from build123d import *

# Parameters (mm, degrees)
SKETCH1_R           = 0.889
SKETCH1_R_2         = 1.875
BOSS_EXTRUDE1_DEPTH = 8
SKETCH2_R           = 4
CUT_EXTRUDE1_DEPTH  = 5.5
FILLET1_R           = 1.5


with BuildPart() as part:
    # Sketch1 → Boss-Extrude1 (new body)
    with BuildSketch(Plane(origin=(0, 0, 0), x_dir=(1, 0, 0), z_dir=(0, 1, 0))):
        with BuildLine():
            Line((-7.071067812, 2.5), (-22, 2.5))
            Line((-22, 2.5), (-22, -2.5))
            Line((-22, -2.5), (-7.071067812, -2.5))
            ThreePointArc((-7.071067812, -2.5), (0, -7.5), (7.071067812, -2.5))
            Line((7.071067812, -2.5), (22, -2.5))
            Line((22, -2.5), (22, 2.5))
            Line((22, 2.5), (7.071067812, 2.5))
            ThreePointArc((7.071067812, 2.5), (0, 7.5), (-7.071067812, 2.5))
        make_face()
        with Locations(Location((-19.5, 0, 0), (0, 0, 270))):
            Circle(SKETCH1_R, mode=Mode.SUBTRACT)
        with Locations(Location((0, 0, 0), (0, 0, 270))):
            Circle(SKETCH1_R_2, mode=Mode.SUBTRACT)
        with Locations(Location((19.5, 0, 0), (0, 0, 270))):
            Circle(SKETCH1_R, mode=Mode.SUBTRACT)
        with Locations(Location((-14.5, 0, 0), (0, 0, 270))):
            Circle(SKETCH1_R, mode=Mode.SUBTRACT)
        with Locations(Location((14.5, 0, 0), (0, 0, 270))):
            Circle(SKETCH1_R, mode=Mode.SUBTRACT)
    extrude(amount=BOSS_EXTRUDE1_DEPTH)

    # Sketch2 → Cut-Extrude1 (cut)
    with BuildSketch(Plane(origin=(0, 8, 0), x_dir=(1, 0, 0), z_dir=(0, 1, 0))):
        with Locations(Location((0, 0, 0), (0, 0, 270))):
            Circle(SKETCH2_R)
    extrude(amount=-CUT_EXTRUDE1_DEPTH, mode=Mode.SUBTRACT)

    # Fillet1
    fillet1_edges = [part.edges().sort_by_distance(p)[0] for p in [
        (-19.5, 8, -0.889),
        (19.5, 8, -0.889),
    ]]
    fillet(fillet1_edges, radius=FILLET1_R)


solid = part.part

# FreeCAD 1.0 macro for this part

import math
import FreeCAD as App
import Part
import Sketcher

V = App.Vector
Q = App.Units.Quantity


def edges_at(feature, points):
    """Names of the edges that pass closest to the given points."""
    edges = feature.Shape.Edges
    near = lambda p: min(range(len(edges)), key=lambda i: edges[i].distToShape(Part.Vertex(*p))[0])
    return sorted({f"Edge{near(p) + 1}" for p in points})

doc = App.newDocument("Part")
params = doc.addObject("Spreadsheet::Sheet", "Params")
for row, (alias, value) in enumerate([
    ("sketch1_radius", "7.5 mm"),
    ("sketch1_diameter", "3.75 mm"),
    ("sketch1_height", "5 mm"),
    ("pad1_length", "8 mm"),
    ("sketch2_diameter", "8 mm"),
    ("pocket1_length", "5.5 mm"),
    ("fillet_radius", "1.5 mm"),
], start=1):
    params.set(f"A{row}", alias)
    params.set(f"B{row}", "=" + value)
    params.setAlias(f"B{row}", alias)

body = doc.addObject("PartDesign::Body", "Body")

# Sketch on XZ plane
sketch1 = body.newObject("Sketcher::SketchObject", "Sketch")
sketch1.AttachmentSupport = (doc.getObject("XZ_Plane"), [""])
sketch1.MapMode = "FlatFace"
sketch1.addGeometry(Part.LineSegment(V(-7.1, -2.5, 0), V(-22, -2.5, 0)), False)
sketch1.addGeometry(Part.LineSegment(V(-22, -2.5, 0), V(-22, 2.5, 0)), False)
sketch1.addGeometry(Part.LineSegment(V(-22, 2.5, 0), V(-7.1, 2.5, 0)), False)
sketch1.addGeometry(Part.ArcOfCircle(Part.Circle(V(0, 0, 0), V(0, 0, 1), 7.5), math.radians(19), math.radians(161)), False)
sketch1.addGeometry(Part.LineSegment(V(7.1, 2.5, 0), V(22, 2.5, 0)), False)
sketch1.addGeometry(Part.LineSegment(V(22, 2.5, 0), V(22, -2.5, 0)), False)
sketch1.addGeometry(Part.LineSegment(V(22, -2.5, 0), V(7.1, -2.5, 0)), False)
sketch1.addGeometry(Part.ArcOfCircle(Part.Circle(V(0, 0, 0), V(0, 0, 1), 7.5), math.radians(-161), math.radians(-19)), False)
sketch1.addGeometry(Part.Circle(V(-19.5, 0, 0), V(0, 0, 1), 0.9), False)
sketch1.addGeometry(Part.Circle(V(-14.5, 0, 0), V(0, 0, 1), 0.9), False)
sketch1.addGeometry(Part.Circle(V(0, 0, 0), V(0, 0, 1), 1.9), False)
sketch1.addGeometry(Part.Circle(V(14.5, 0, 0), V(0, 0, 1), 0.9), False)
sketch1.addGeometry(Part.Circle(V(19.5, 0, 0), V(0, 0, 1), 0.9), False)
sketch1.addConstraint(Sketcher.Constraint("Coincident", 0, 2, 1, 1))
sketch1.addConstraint(Sketcher.Constraint("Coincident", 1, 2, 2, 1))
sketch1.addConstraint(Sketcher.Constraint("Coincident", 2, 2, 3, 2))
sketch1.addConstraint(Sketcher.Constraint("Coincident", 3, 1, 4, 1))
sketch1.addConstraint(Sketcher.Constraint("Coincident", 4, 2, 5, 1))
sketch1.addConstraint(Sketcher.Constraint("Coincident", 5, 2, 6, 1))
sketch1.addConstraint(Sketcher.Constraint("Coincident", 6, 2, 7, 2))
sketch1.addConstraint(Sketcher.Constraint("Coincident", 7, 1, 0, 1))
sketch1.addConstraint(Sketcher.Constraint("Horizontal", 0))
sketch1.addConstraint(Sketcher.Constraint("Vertical", 1))
sketch1.addConstraint(Sketcher.Constraint("Horizontal", 2))
sketch1.addConstraint(Sketcher.Constraint("Horizontal", 4))
sketch1.addConstraint(Sketcher.Constraint("Vertical", 5))
sketch1.addConstraint(Sketcher.Constraint("Horizontal", 6))
sketch1.addConstraint(Sketcher.Constraint("Coincident", 3, 3, -1, 1))
sketch1.addConstraint(Sketcher.Constraint("Coincident", 7, 3, -1, 1))
sketch1.addConstraint(Sketcher.Constraint("Coincident", 10, 3, -1, 1))
sketch1.addConstraint(Sketcher.Constraint("Equal", 3, 7))
sketch1.addConstraint(Sketcher.Constraint("Equal", 8, 9))
sketch1.addConstraint(Sketcher.Constraint("Equal", 9, 11))
sketch1.addConstraint(Sketcher.Constraint("Equal", 11, 12))
sketch1.addConstraint(Sketcher.Constraint("Symmetric", 9, 3, 11, 3, -1, 1))
sketch1.addConstraint(Sketcher.Constraint("Symmetric", 8, 3, 12, 3, -1, 1))
sketch1.addConstraint(Sketcher.Constraint("Symmetric", 0, 2, 4, 2, -1, 1))
sketch1.addConstraint(Sketcher.Constraint("PointOnObject", 8, 3, -1))
sketch1.addConstraint(Sketcher.Constraint("PointOnObject", 9, 3, -1))
sketch1.addConstraint(Sketcher.Constraint("Horizontal", 2, 2, 3, 1))
sketch1.addConstraint(Sketcher.Constraint("Horizontal", 0, 2, 5, 2))
sketch1.addConstraint(Sketcher.Constraint("Radius", 3, Q("7.5 mm")))
sketch1.addConstraint(Sketcher.Constraint("Diameter", 10, Q("3.75 mm")))
sketch1.addConstraint(Sketcher.Constraint("DistanceY", 1, 1, 1, 2, Q("5 mm")))
sketch1.addConstraint(Sketcher.Constraint("Diameter", 8, Q("1.778 mm")))
sketch1.addConstraint(Sketcher.Constraint("DistanceX", 0, 2, -1, 1, Q("22 mm")))
sketch1.addConstraint(Sketcher.Constraint("DistanceX", 8, 3, 9, 3, Q("5 mm")))
sketch1.addConstraint(Sketcher.Constraint("DistanceX", 9, 3, 11, 3, Q("29 mm")))
sketch1.setExpression("Constraints[28]", "Params.sketch1_radius")
sketch1.setExpression("Constraints[29]", "Params.sketch1_diameter")
sketch1.setExpression("Constraints[30]", "Params.sketch1_height")
pad1 = body.newObject("PartDesign::Pad", "Pad")
pad1.Profile = sketch1
pad1.setExpression("Length", "Params.pad1_length")
pad1.Reversed = True

# Sketch on XZ plane
sketch2 = body.newObject("Sketcher::SketchObject", "Sketch001")
sketch2.AttachmentSupport = (doc.getObject("XZ_Plane"), [""])
sketch2.MapMode = "FlatFace"
sketch2.AttachmentOffset = App.Placement(V(0, 0, -8), App.Rotation())
sketch2.addGeometry(Part.Circle(V(0, 0, 0), V(0, 0, 1), 4), False)
sketch2.addConstraint(Sketcher.Constraint("Coincident", 0, 3, -1, 1))
sketch2.addConstraint(Sketcher.Constraint("Diameter", 0, Q("8 mm")))
sketch2.setExpression("Constraints[1]", "Params.sketch2_diameter")
pocket1 = body.newObject("PartDesign::Pocket", "Pocket")
pocket1.Profile = sketch2
pocket1.setExpression("Length", "Params.pocket1_length")
pocket1.Reversed = True
doc.recompute()

fillet = body.newObject("PartDesign::Fillet", "Fillet")
fillet.Base = (pocket1, edges_at(pocket1, [(-19.5, 8, -0.889), (19.5, 8, -0.889)]))
fillet.setExpression("Radius", "Params.fillet_radius")

doc.recompute()
